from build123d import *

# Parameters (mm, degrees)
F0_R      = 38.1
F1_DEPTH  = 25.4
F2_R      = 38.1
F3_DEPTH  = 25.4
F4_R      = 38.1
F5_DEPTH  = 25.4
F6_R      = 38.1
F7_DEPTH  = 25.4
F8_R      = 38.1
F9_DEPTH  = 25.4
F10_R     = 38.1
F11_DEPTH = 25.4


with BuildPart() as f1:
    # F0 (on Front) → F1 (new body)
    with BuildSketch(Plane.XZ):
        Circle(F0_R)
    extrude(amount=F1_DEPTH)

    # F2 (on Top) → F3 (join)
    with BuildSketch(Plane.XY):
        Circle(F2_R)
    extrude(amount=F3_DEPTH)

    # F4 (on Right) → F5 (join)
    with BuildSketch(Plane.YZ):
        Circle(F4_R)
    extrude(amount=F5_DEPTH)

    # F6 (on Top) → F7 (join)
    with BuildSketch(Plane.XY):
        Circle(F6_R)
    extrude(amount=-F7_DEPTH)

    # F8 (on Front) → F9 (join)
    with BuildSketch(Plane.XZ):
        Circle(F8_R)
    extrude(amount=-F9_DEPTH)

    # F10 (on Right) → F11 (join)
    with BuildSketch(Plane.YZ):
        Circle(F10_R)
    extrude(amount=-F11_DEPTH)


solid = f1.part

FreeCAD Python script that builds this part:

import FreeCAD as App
import Part
import Sketcher
from FreeCAD import Vector
Q = App.Units.Quantity

doc = App.newDocument("Part")
body = doc.addObject("PartDesign::Body", "Body")

# Sketch on XZ plane
sketch1 = body.newObject("Sketcher::SketchObject", "Sketch")
sketch1.AttachmentSupport = (doc.getObject("XZ_Plane"), [""])
sketch1.MapMode = "FlatFace"
sketch1.addGeometry(Part.Circle(Vector(0, 0, 0), Vector(0, 0, 1), 38), False)
sketch1.addConstraint(Sketcher.Constraint("Coincident", 0, 3, -1, 1))
sketch1.addConstraint(Sketcher.Constraint("Diameter", 0, Q("3 in")))
pad1 = body.newObject("PartDesign::Pad", "Pad")
pad1.Profile = sketch1
pad1.Length = Q("1 in")

# Sketch on XY plane
sketch2 = body.newObject("Sketcher::SketchObject", "Sketch001")
sketch2.AttachmentSupport = (doc.getObject("XY_Plane"), [""])
sketch2.MapMode = "FlatFace"
sketch2.addGeometry(Part.Circle(Vector(0, 0, 0), Vector(0, 0, 1), 38), False)
sketch2.addConstraint(Sketcher.Constraint("Coincident", 0, 3, -1, 1))
sketch2.addConstraint(Sketcher.Constraint("Diameter", 0, Q("3 in")))
pad2 = body.newObject("PartDesign::Pad", "Pad001")
pad2.Profile = sketch2
pad2.Length = Q("1 in")

# Sketch on YZ plane
sketch3 = body.newObject("Sketcher::SketchObject", "Sketch002")
sketch3.AttachmentSupport = (doc.getObject("YZ_Plane"), [""])
sketch3.MapMode = "FlatFace"
sketch3.addGeometry(Part.Circle(Vector(0, 0, 0), Vector(0, 0, 1), 38), False)
sketch3.addConstraint(Sketcher.Constraint("Coincident", 0, 3, -1, 1))
sketch3.addConstraint(Sketcher.Constraint("Diameter", 0, Q("3 in")))
pad3 = body.newObject("PartDesign::Pad", "Pad002")
pad3.Profile = sketch3
pad3.Length = Q("1 in")

# Sketch on XY plane
sketch4 = body.newObject("Sketcher::SketchObject", "Sketch003")
sketch4.AttachmentSupport = (doc.getObject("XY_Plane"), [""])
sketch4.MapMode = "FlatFace"
sketch4.addGeometry(Part.Circle(Vector(0, 0, 0), Vector(0, 0, 1), 38), False)
sketch4.addConstraint(Sketcher.Constraint("Coincident", 0, 3, -1, 1))
sketch4.addConstraint(Sketcher.Constraint("Diameter", 0, Q("3 in")))
pad4 = body.newObject("PartDesign::Pad", "Pad003")
pad4.Profile = sketch4
pad4.Length = Q("1 in")
pad4.Reversed = True

# Sketch on XZ plane
sketch5 = body.newObject("Sketcher::SketchObject", "Sketch004")
sketch5.AttachmentSupport = (doc.getObject("XZ_Plane"), [""])
sketch5.MapMode = "FlatFace"
sketch5.addGeometry(Part.Circle(Vector(0, 0, 0), Vector(0, 0, 1), 38), False)
sketch5.addConstraint(Sketcher.Constraint("Coincident", 0, 3, -1, 1))
sketch5.addConstraint(Sketcher.Constraint("Diameter", 0, Q("3 in")))
pad5 = body.newObject("PartDesign::Pad", "Pad004")
pad5.Profile = sketch5
pad5.Length = Q("1 in")
pad5.Reversed = True

# Sketch on YZ plane
sketch6 = body.newObject("Sketcher::SketchObject", "Sketch005")
sketch6.AttachmentSupport = (doc.getObject("YZ_Plane"), [""])
sketch6.MapMode = "FlatFace"
sketch6.addGeometry(Part.Circle(Vector(0, 0, 0), Vector(0, 0, 1), 38), False)
sketch6.addConstraint(Sketcher.Constraint("Coincident", 0, 3, -1, 1))
sketch6.addConstraint(Sketcher.Constraint("Diameter", 0, Q("3 in")))
pad6 = body.newObject("PartDesign::Pad", "Pad005")
pad6.Profile = sketch6
pad6.Length = Q("1 in")
pad6.Reversed = True

doc.recompute()
